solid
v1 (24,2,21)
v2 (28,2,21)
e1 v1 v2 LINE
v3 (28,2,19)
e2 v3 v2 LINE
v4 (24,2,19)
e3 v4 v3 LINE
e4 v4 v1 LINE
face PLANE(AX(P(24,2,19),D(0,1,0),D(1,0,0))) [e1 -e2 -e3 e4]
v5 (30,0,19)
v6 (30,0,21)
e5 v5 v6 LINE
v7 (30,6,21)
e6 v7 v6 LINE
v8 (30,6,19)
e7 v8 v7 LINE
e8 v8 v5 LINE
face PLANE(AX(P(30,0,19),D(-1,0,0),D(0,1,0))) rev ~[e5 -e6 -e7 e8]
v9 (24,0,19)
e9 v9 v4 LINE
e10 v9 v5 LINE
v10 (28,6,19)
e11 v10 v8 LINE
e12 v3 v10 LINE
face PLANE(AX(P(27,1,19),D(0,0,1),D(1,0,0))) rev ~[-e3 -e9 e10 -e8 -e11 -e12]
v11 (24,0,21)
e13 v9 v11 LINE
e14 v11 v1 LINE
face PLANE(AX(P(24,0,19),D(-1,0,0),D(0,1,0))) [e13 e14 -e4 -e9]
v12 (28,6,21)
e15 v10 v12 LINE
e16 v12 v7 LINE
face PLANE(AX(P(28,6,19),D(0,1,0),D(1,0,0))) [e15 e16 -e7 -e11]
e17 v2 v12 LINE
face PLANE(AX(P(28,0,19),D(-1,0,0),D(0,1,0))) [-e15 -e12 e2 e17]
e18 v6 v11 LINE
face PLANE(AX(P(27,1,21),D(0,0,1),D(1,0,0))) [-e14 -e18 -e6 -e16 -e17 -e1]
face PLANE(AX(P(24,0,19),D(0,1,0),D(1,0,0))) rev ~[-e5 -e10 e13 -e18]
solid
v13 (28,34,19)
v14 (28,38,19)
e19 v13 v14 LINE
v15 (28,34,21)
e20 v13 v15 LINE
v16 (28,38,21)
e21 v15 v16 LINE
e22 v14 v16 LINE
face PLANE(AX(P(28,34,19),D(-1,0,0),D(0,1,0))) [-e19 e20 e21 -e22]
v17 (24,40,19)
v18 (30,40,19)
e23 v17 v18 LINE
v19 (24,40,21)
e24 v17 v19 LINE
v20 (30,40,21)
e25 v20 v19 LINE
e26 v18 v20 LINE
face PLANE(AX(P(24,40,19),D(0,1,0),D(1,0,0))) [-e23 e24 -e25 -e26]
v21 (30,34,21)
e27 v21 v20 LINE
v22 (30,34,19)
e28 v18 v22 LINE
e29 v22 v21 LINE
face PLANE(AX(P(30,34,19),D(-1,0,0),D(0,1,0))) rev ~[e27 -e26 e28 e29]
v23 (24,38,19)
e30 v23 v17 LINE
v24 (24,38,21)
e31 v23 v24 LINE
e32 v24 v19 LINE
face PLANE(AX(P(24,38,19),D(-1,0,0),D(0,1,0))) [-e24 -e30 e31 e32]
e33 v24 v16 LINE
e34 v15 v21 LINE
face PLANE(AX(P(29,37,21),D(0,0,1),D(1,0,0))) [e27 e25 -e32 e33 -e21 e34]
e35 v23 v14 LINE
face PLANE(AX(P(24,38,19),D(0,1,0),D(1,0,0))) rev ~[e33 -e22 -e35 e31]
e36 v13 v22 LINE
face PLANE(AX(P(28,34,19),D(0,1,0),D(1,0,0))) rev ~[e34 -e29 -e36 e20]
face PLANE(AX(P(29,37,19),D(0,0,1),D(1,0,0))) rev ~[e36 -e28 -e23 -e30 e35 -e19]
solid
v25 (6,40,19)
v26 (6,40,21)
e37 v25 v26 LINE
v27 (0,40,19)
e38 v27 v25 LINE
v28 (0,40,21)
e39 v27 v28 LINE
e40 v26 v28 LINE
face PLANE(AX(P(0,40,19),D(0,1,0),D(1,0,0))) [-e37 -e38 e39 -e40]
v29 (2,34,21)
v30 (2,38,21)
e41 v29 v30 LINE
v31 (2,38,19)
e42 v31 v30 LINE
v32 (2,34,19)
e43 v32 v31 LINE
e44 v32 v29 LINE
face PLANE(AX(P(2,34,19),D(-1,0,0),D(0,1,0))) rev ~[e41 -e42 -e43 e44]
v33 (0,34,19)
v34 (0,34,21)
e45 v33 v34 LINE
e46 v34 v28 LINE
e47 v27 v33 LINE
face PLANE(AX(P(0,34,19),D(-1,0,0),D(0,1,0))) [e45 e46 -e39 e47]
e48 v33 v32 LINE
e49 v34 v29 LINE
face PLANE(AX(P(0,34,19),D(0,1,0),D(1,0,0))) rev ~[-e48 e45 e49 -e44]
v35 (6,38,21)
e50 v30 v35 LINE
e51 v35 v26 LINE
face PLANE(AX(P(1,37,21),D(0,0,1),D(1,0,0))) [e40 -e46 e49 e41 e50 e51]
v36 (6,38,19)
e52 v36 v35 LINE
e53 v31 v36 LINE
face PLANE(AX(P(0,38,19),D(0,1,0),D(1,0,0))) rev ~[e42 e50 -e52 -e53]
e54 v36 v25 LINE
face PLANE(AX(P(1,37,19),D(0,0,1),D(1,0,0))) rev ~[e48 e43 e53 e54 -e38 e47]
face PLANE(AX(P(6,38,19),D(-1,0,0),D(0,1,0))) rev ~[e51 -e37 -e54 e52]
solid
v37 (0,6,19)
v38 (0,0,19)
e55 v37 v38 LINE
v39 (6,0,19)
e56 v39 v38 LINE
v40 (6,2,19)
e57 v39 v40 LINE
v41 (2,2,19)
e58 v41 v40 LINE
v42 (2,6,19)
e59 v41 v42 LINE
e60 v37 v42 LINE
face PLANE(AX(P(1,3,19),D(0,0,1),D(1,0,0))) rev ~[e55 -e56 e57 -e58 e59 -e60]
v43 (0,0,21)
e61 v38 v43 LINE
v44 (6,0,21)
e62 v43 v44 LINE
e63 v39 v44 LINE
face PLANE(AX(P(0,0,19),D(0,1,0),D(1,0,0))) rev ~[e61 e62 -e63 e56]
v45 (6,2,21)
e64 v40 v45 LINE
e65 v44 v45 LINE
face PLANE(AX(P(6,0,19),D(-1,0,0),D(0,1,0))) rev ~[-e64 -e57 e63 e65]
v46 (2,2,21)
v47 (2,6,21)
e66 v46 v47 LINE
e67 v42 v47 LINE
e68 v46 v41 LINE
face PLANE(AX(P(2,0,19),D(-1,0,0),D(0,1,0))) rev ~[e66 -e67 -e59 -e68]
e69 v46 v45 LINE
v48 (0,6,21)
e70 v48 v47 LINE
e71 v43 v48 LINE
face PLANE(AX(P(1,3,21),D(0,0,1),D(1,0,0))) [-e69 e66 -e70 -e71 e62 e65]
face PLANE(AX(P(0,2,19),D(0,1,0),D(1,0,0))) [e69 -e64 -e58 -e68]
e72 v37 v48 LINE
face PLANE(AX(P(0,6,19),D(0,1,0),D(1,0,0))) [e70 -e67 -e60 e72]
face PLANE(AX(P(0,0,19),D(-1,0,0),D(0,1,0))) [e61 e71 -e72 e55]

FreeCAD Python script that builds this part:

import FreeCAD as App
import Part
import Sketcher
Q = App.Units.Quantity


def add_polygon(sketch, points):
    """Adds a closed chain of lines whose ends are joined by coincident constraints."""
    first, n = sketch.GeometryCount, len(points)
    for a, b in zip(points, points[1:] + points[:1]):
        sketch.addGeometry(Part.LineSegment(App.Vector(*a, 0), App.Vector(*b, 0)), False)
    for i in range(n):
        sketch.addConstraint(Sketcher.Constraint("Coincident", first + i, 2, first + (i + 1) % n, 1))

doc = App.newDocument("Part")
body = doc.addObject("PartDesign::Body", "Body")

sketch1 = doc.addObject("Sketcher::SketchObject", "Sketch")
body.addObject(sketch1)
sketch1.AttachmentSupport = (doc.XY_Plane, [""])
sketch1.MapMode = "FlatFace"
sketch1.AttachmentOffset = App.Placement(App.Vector(0, 0, 19), App.Rotation())
add_polygon(sketch1, [(0, 2), (0, 0), (6, 0), (6, 2)])
sketch1.addConstraint([
    Sketcher.Constraint("Vertical", 0),
    Sketcher.Constraint("Horizontal", 1),
    Sketcher.Constraint("Vertical", 2),
    Sketcher.Constraint("Horizontal", 3),
    Sketcher.Constraint("Coincident", 0, 2, -1, 1),
    Sketcher.Constraint("DistanceX", 1, 1, 1, 2, Q("6 mm")),
    Sketcher.Constraint("DistanceY", 0, 2, 0, 1, Q("2 mm")),
])
pad1 = doc.addObject("PartDesign::Pad", "Pad")
body.addObject(pad1)
pad1.Profile = sketch1
pad1.Length = 2
body2 = doc.addObject("PartDesign::Body", "Body001")

sketch2 = doc.addObject("Sketcher::SketchObject", "Sketch001")
body2.addObject(sketch2)
sketch2.AttachmentSupport = (doc.getObject("XY_Plane001"), [""])
sketch2.MapMode = "FlatFace"
sketch2.AttachmentOffset = App.Placement(App.Vector(0, 0, 19), App.Rotation())
add_polygon(sketch2, [(24, 2), (24, 0), (30, 0), (30, 2)])
sketch2.addConstraint([
    Sketcher.Constraint("Vertical", 0),
    Sketcher.Constraint("Horizontal", 1),
    Sketcher.Constraint("Vertical", 2),
    Sketcher.Constraint("Horizontal", 3),
    Sketcher.Constraint("PointOnObject", 0, 2, -1),
    Sketcher.Constraint("DistanceX", 1, 1, 1, 2, Q("6 mm")),
    Sketcher.Constraint("DistanceY", 0, 2, 0, 1, Q("2 mm")),
    Sketcher.Constraint("DistanceX", -1, 1, 0, 2, Q("24 mm")),
])
pad2 = doc.addObject("PartDesign::Pad", "Pad001")
body2.addObject(pad2)
pad2.Profile = sketch2
pad2.Length = 2
body3 = doc.addObject("PartDesign::Body", "Body002")

sketch3 = doc.addObject("Sketcher::SketchObject", "Sketch002")
body3.addObject(sketch3)
sketch3.AttachmentSupport = (doc.getObject("XY_Plane002"), [""])
sketch3.MapMode = "FlatFace"
sketch3.AttachmentOffset = App.Placement(App.Vector(0, 0, 19), App.Rotation())
add_polygon(sketch3, [(0, 40), (0, 38), (6, 38), (6, 40)])
sketch3.addConstraint([
    Sketcher.Constraint("Vertical", 0),
    Sketcher.Constraint("Horizontal", 1),
    Sketcher.Constraint("Vertical", 2),
    Sketcher.Constraint("Horizontal", 3),
    Sketcher.Constraint("PointOnObject", 0, 2, -2),
    Sketcher.Constraint("DistanceX", 1, 1, 1, 2, Q("6 mm")),
    Sketcher.Constraint("DistanceY", 0, 2, 0, 1, Q("2 mm")),
    Sketcher.Constraint("DistanceY", -1, 1, 0, 2, Q("38 mm")),
])
pad3 = doc.addObject("PartDesign::Pad", "Pad002")
body3.addObject(pad3)
pad3.Profile = sketch3
pad3.Length = 2
body4 = doc.addObject("PartDesign::Body", "Body003")

sketch4 = doc.addObject("Sketcher::SketchObject", "Sketch003")
body4.addObject(sketch4)
sketch4.AttachmentSupport = (doc.getObject("XY_Plane003"), [""])
sketch4.MapMode = "FlatFace"
sketch4.AttachmentOffset = App.Placement(App.Vector(0, 0, 19), App.Rotation())
add_polygon(sketch4, [(24, 40), (24, 38), (30, 38), (30, 40)])
sketch4.addConstraint([
    Sketcher.Constraint("Vertical", 0),
    Sketcher.Constraint("Horizontal", 1),
    Sketcher.Constraint("Vertical", 2),
    Sketcher.Constraint("Horizontal", 3),
    Sketcher.Constraint("DistanceX", 1, 1, 1, 2, Q("6 mm")),
    Sketcher.Constraint("DistanceY", 0, 2, 0, 1, Q("2 mm")),
    Sketcher.Constraint("DistanceX", -1, 1, 0, 2, Q("24 mm")),
    Sketcher.Constraint("DistanceY", -1, 1, 0, 2, Q("38 mm")),
])
pad4 = doc.addObject("PartDesign::Pad", "Pad003")
body4.addObject(pad4)
pad4.Profile = sketch4
pad4.Length = 2
body5 = doc.addObject("PartDesign::Body", "Body004")

sketch5 = doc.addObject("Sketcher::SketchObject", "Sketch004")
body5.addObject(sketch5)
sketch5.AttachmentSupport = (doc.getObject("XY_Plane004"), [""])
sketch5.MapMode = "FlatFace"
sketch5.AttachmentOffset = App.Placement(App.Vector(0, 0, 19), App.Rotation())
add_polygon(sketch5, [(28, 6), (28, 0), (30, 0), (30, 6)])
sketch5.addConstraint([
    Sketcher.Constraint("Vertical", 0),
    Sketcher.Constraint("Horizontal", 1),
    Sketcher.Constraint("Vertical", 2),
    Sketcher.Constraint("Horizontal", 3),
    Sketcher.Constraint("PointOnObject", 0, 2, -1),
    Sketcher.Constraint("DistanceX", 1, 1, 1, 2, Q("2 mm")),
    Sketcher.Constraint("DistanceY", 0, 2, 0, 1, Q("6 mm")),
    Sketcher.Constraint("DistanceX", -1, 1, 0, 2, Q("28 mm")),
])
pad5 = doc.addObject("PartDesign::Pad", "Pad004")
body5.addObject(pad5)
pad5.Profile = sketch5
pad5.Length = 2
body6 = doc.addObject("PartDesign::Body", "Body005")

sketch6 = doc.addObject("Sketcher::SketchObject", "Sketch005")
body6.addObject(sketch6)
sketch6.AttachmentSupport = (doc.getObject("XY_Plane005"), [""])
sketch6.MapMode = "FlatFace"
sketch6.AttachmentOffset = App.Placement(App.Vector(0, 0, 19), App.Rotation())
add_polygon(sketch6, [(0, 40), (0, 34), (2, 34), (2, 40)])
sketch6.addConstraint([
    Sketcher.Constraint("Vertical", 0),
    Sketcher.Constraint("Horizontal", 1),
    Sketcher.Constraint("Vertical", 2),
    Sketcher.Constraint("Horizontal", 3),
    Sketcher.Constraint("PointOnObject", 0, 2, -2),
    Sketcher.Constraint("DistanceX", 1, 1, 1, 2, Q("2 mm")),
    Sketcher.Constraint("DistanceY", 0, 2, 0, 1, Q("6 mm")),
    Sketcher.Constraint("DistanceY", -1, 1, 0, 2, Q("34 mm")),
])
pad6 = doc.addObject("PartDesign::Pad", "Pad005")
body6.addObject(pad6)
pad6.Profile = sketch6
pad6.Length = 2
body7 = doc.addObject("PartDesign::Body", "Body006")

sketch7 = doc.addObject("Sketcher::SketchObject", "Sketch006")
body7.addObject(sketch7)
sketch7.AttachmentSupport = (doc.getObject("XY_Plane006"), [""])
sketch7.MapMode = "FlatFace"
sketch7.AttachmentOffset = App.Placement(App.Vector(0, 0, 19), App.Rotation())
add_polygon(sketch7, [(28, 40), (28, 34), (30, 34), (30, 40)])
sketch7.addConstraint([
    Sketcher.Constraint("Vertical", 0),
    Sketcher.Constraint("Horizontal", 1),
    Sketcher.Constraint("Vertical", 2),
    Sketcher.Constraint("Horizontal", 3),
    Sketcher.Constraint("DistanceX", 1, 1, 1, 2, Q("2 mm")),
    Sketcher.Constraint("DistanceY", 0, 2, 0, 1, Q("6 mm")),
    Sketcher.Constraint("DistanceX", -1, 1, 0, 2, Q("28 mm")),
    Sketcher.Constraint("DistanceY", -1, 1, 0, 2, Q("34 mm")),
])
pad7 = doc.addObject("PartDesign::Pad", "Pad006")
body7.addObject(pad7)
pad7.Profile = sketch7
pad7.Length = 2
body8 = doc.addObject("PartDesign::Body", "Body007")
body8.AllowCompound = True

sketch8 = doc.addObject("Sketcher::SketchObject", "Sketch007")
body8.addObject(sketch8)
sketch8.AttachmentSupport = (doc.getObject("XY_Plane007"), [""])
sketch8.MapMode = "FlatFace"
sketch8.AttachmentOffset = App.Placement(App.Vector(0, 0, 19), App.Rotation())
add_polygon(sketch8, [(0, 6), (0, 0), (2, 0), (2, 6)])
sketch8.addConstraint([
    Sketcher.Constraint("Vertical", 0),
    Sketcher.Constraint("Horizontal", 1),
    Sketcher.Constraint("Vertical", 2),
    Sketcher.Constraint("Horizontal", 3),
    Sketcher.Constraint("Coincident", 0, 2, -1, 1),
    Sketcher.Constraint("DistanceX", 1, 1, 1, 2, Q("2 mm")),
    Sketcher.Constraint("DistanceY", 0, 2, 0, 1, Q("6 mm")),
])
pad8 = doc.addObject("PartDesign::Pad", "Pad007")
body8.addObject(pad8)
pad8.Profile = sketch8
pad8.Length = 2
doc.recompute()

boolean = doc.addObject("PartDesign::Boolean", "Boolean")
body8.addObject(boolean)
boolean.Type = "Fuse"
boolean.addObjects([body])
doc.recompute()

boolean2 = doc.addObject("PartDesign::Boolean", "Boolean001")
body8.addObject(boolean2)
boolean2.Type = "Fuse"
boolean2.addObjects([body2])
doc.recompute()

boolean3 = doc.addObject("PartDesign::Boolean", "Boolean002")
body8.addObject(boolean3)
boolean3.Type = "Fuse"
boolean3.addObjects([body3])
doc.recompute()

boolean4 = doc.addObject("PartDesign::Boolean", "Boolean003")
body8.addObject(boolean4)
boolean4.Type = "Fuse"
boolean4.addObjects([body4])
doc.recompute()

boolean5 = doc.addObject("PartDesign::Boolean", "Boolean004")
body8.addObject(boolean5)
boolean5.Type = "Fuse"
boolean5.addObjects([body5])
doc.recompute()

boolean6 = doc.addObject("PartDesign::Boolean", "Boolean005")
body8.addObject(boolean6)
boolean6.Type = "Fuse"
boolean6.addObjects([body6])
doc.recompute()

boolean7 = doc.addObject("PartDesign::Boolean", "Boolean006")
body8.addObject(boolean7)
boolean7.Type = "Fuse"
boolean7.addObjects([body7])

doc.recompute()
